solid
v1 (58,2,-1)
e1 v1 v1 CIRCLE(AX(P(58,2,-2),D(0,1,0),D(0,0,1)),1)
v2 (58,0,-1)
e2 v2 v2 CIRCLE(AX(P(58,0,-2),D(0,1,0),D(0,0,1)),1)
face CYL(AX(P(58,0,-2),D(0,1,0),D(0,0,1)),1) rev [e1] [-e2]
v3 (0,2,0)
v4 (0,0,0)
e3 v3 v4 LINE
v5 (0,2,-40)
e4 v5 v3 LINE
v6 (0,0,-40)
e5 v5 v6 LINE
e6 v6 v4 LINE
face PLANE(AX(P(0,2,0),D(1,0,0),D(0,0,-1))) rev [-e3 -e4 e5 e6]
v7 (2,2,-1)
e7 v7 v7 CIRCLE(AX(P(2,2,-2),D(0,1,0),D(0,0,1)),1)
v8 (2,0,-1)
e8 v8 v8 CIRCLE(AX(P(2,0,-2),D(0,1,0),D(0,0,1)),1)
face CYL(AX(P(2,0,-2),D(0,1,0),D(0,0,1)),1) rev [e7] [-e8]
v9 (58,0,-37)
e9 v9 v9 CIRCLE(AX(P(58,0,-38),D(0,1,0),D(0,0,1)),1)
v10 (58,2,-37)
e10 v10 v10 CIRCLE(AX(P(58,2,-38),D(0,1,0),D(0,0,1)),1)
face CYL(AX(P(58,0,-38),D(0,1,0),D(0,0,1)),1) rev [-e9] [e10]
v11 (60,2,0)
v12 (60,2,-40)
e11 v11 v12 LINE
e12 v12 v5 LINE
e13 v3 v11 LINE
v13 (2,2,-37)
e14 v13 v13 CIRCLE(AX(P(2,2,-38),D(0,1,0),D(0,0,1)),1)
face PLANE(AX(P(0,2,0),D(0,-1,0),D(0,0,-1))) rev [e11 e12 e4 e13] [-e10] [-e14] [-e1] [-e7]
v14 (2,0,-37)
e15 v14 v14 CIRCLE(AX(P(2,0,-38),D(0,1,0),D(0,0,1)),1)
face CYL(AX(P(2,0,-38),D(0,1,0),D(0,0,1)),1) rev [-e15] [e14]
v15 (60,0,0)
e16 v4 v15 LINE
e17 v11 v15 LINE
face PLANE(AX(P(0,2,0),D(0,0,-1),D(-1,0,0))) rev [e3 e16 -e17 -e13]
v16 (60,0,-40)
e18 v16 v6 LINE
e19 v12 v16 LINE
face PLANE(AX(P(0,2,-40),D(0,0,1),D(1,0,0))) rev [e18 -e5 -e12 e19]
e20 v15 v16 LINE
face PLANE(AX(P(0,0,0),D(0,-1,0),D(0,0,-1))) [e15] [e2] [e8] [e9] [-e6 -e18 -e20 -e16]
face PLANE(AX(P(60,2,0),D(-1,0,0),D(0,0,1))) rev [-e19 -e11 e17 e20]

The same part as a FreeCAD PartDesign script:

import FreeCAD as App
import Part
import Sketcher
Q = App.Units.Quantity

doc = App.newDocument("Part")
params = doc.addObject("Spreadsheet::Sheet", "Params")
for row, (alias, value) in enumerate([
    ("sketch1_width", "60 mm"),
    ("sketch1_height", "40 mm"),
    ("pad1_length", "2 mm"),
    ("sketch2_diameter", "2 mm"),
], start=1):
    params.set(f"A{row}", alias)
    params.set(f"B{row}", "=" + value)
    params.setAlias(f"B{row}", alias)

body = doc.addObject("PartDesign::Body", "Body")

# Sketch on XZ plane
sketch1 = body.newObject("Sketcher::SketchObject", "Sketch")
sketch1.AttachmentSupport = (doc.getObject("XZ_Plane"), [""])
sketch1.MapMode = "FlatFace"
sketch1.addGeometry([
    Part.LineSegment(App.Vector(0, -40, 0), App.Vector(0, 0, 0)),
    Part.LineSegment(App.Vector(0, 0, 0), App.Vector(60, 0, 0)),
    Part.LineSegment(App.Vector(60, 0, 0), App.Vector(60, -40, 0)),
    Part.LineSegment(App.Vector(60, -40, 0), App.Vector(0, -40, 0)),
], False)
sketch1.addConstraint([
    Sketcher.Constraint("Coincident", 0, 2, 1, 1),
    Sketcher.Constraint("Coincident", 1, 2, 2, 1),
    Sketcher.Constraint("Coincident", 2, 2, 3, 1),
    Sketcher.Constraint("Coincident", 3, 2, 0, 1),
    Sketcher.Constraint("Vertical", 0),
    Sketcher.Constraint("Horizontal", 1),
    Sketcher.Constraint("Vertical", 2),
    Sketcher.Constraint("Horizontal", 3),
    Sketcher.Constraint("Coincident", 0, 2, -1, 1),
    Sketcher.Constraint("DistanceX", 1, 1, 1, 2, Q("60 mm")),
    Sketcher.Constraint("DistanceY", 0, 1, 0, 2, Q("40 mm")),
])
sketch1.setExpression("Constraints[9]", "Params.sketch1_width")
sketch1.setExpression("Constraints[10]", "Params.sketch1_height")
pad1 = body.newObject("PartDesign::Pad", "Pad")
pad1.Profile = sketch1
pad1.setExpression("Length", "Params.pad1_length")
pad1.Reversed = True

# Sketch on XZ plane
sketch2 = body.newObject("Sketcher::SketchObject", "Sketch001")
sketch2.AttachmentSupport = (doc.getObject("XZ_Plane"), [""])
sketch2.MapMode = "FlatFace"
sketch2.AttachmentOffset = App.Placement(App.Vector(0, 0, -2), App.Rotation())
sketch2.addGeometry([
    Part.Circle(App.Vector(2, -38, 0), App.Vector(0, 0, 1), 1),
    Part.Circle(App.Vector(2, -2, 0), App.Vector(0, 0, 1), 1),
    Part.Circle(App.Vector(58, -2, 0), App.Vector(0, 0, 1), 1),
    Part.Circle(App.Vector(58, -38, 0), App.Vector(0, 0, 1), 1),
], False)
sketch2.addConstraint([
    Sketcher.Constraint("Equal", 0, 1),
    Sketcher.Constraint("Equal", 1, 2),
    Sketcher.Constraint("Equal", 2, 3),
    Sketcher.Constraint("Horizontal", 1, 3, 2, 3),
    Sketcher.Constraint("Horizontal", 0, 3, 3, 3),
    Sketcher.Constraint("Vertical", 0, 3, 1, 3),
    Sketcher.Constraint("Vertical", 2, 3, 3, 3),
    Sketcher.Constraint("Diameter", 0, Q("2 mm")),
    Sketcher.Constraint("DistanceX", -1, 1, 0, 3, Q("2 mm")),
    Sketcher.Constraint("DistanceY", 0, 3, -1, 1, Q("38 mm")),
    Sketcher.Constraint("DistanceY", 1, 3, -1, 1, Q("2 mm")),
    Sketcher.Constraint("DistanceX", -1, 1, 2, 3, Q("58 mm")),
])
sketch2.setExpression("Constraints[7]", "Params.sketch2_diameter")
pocket1 = body.newObject("PartDesign::Pocket", "Pocket")
pocket1.Profile = sketch2
pocket1.Type = "ThroughAll"
pocket1.Reversed = True

doc.recompute()
